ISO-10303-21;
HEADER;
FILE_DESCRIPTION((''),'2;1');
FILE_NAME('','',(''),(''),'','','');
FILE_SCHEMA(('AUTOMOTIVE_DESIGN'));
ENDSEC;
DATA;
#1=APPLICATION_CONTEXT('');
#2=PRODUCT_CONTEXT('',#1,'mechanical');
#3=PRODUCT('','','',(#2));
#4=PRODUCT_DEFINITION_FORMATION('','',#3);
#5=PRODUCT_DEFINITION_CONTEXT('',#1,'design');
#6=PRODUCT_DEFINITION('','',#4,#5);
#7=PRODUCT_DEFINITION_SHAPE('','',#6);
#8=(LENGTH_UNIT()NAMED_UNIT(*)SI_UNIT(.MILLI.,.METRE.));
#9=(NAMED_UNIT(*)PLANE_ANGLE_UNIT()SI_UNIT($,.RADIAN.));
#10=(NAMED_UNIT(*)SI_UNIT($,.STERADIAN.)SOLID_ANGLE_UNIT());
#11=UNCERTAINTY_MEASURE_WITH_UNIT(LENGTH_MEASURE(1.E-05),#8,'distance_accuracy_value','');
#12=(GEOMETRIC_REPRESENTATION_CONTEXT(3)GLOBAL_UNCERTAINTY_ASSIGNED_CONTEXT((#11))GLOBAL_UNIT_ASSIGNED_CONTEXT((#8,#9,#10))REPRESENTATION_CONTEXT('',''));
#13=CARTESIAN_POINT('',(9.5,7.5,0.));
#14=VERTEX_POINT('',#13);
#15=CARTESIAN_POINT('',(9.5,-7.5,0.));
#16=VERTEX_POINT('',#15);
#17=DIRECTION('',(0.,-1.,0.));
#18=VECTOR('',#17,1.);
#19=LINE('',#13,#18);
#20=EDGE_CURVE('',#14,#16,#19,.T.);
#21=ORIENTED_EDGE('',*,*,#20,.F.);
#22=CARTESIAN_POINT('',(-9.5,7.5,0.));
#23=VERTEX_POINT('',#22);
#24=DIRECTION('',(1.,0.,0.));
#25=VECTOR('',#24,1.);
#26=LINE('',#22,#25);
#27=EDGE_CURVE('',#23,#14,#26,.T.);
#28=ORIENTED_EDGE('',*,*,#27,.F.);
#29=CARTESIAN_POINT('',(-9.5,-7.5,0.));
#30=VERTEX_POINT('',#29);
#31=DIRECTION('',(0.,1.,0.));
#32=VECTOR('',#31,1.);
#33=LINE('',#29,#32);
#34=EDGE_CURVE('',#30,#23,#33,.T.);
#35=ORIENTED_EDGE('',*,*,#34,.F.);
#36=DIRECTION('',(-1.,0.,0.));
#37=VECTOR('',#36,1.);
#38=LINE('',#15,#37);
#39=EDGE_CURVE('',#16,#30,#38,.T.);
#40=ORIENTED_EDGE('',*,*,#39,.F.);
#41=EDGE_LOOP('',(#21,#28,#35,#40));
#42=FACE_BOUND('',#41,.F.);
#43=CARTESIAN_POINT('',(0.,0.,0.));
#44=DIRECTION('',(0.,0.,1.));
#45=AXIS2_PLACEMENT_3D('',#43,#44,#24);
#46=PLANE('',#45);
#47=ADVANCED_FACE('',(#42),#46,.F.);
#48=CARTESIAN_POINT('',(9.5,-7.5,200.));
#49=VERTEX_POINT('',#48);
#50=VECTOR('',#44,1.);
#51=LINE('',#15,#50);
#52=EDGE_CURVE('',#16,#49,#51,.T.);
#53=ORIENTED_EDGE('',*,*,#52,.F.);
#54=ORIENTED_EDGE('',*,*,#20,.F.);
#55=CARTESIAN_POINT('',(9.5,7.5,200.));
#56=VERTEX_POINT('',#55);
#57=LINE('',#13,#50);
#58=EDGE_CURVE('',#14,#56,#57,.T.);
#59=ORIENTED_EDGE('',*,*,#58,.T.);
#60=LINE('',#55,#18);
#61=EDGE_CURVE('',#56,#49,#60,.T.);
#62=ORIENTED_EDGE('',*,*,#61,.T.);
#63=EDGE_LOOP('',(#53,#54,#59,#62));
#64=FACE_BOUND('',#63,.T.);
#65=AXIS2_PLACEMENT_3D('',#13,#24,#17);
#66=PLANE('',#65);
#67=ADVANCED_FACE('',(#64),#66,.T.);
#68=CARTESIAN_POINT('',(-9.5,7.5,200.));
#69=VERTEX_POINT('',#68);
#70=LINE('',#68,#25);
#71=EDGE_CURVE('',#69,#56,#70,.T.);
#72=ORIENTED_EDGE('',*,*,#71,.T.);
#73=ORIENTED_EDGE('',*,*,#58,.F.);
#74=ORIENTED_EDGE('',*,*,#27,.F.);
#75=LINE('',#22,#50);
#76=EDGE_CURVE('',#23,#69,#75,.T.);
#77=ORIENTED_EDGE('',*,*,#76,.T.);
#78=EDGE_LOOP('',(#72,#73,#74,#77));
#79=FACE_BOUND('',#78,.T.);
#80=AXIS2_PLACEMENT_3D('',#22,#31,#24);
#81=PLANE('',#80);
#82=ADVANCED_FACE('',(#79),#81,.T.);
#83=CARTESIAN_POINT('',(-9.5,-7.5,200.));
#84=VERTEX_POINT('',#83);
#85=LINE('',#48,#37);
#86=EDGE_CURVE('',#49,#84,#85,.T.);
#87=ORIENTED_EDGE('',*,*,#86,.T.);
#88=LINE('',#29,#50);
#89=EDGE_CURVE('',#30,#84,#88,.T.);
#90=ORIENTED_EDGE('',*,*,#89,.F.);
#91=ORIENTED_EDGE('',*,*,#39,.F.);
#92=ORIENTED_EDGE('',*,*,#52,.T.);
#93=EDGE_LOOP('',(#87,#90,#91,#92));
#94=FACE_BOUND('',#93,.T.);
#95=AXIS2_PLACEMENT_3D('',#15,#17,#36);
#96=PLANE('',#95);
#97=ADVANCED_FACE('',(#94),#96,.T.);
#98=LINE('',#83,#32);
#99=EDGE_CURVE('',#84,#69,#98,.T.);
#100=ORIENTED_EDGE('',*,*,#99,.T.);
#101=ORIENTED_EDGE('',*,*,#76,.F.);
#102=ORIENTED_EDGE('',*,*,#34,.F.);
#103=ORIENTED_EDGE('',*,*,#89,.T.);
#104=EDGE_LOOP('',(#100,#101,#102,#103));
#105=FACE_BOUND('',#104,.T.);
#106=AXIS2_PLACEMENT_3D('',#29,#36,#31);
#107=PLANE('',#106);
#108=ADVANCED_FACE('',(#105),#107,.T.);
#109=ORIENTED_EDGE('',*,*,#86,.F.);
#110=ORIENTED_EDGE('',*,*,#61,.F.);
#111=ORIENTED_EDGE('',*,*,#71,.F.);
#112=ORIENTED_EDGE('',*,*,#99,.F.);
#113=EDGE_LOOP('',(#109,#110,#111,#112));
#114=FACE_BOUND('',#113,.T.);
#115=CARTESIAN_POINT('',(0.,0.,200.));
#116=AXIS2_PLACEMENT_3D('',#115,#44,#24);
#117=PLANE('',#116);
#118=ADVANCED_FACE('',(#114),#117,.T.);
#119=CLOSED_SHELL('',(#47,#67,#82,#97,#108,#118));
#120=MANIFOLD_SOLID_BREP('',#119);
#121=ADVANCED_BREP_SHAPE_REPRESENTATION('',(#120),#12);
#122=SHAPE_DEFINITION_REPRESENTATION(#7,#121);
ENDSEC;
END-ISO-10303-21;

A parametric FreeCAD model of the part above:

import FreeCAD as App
import Part
import Sketcher

doc = App.newDocument("Part")
body = doc.addObject("PartDesign::Body", "Body")

sketch1 = body.newObject("Sketcher::SketchObject", "Sketch")
sketch1.AttachmentSupport = (doc.getObject("XY_Plane"), [""])
sketch1.MapMode = "FlatFace"
sketch1.addGeometry(Part.LineSegment(App.Vector(-10, -8, 0), App.Vector(10, -8, 0)), False)
sketch1.addGeometry(Part.LineSegment(App.Vector(10, -8, 0), App.Vector(10, 8, 0)), False)
sketch1.addGeometry(Part.LineSegment(App.Vector(10, 8, 0), App.Vector(-10, 8, 0)), False)
sketch1.addGeometry(Part.LineSegment(App.Vector(-10, 8, 0), App.Vector(-10, -8, 0)), False)
sketch1.addConstraint(Sketcher.Constraint("Coincident", 0, 2, 1, 1))
sketch1.addConstraint(Sketcher.Constraint("Coincident", 1, 2, 2, 1))
sketch1.addConstraint(Sketcher.Constraint("Coincident", 2, 2, 3, 1))
sketch1.addConstraint(Sketcher.Constraint("Coincident", 3, 2, 0, 1))
sketch1.addConstraint(Sketcher.Constraint("Horizontal", 0))
sketch1.addConstraint(Sketcher.Constraint("Vertical", 1))
sketch1.addConstraint(Sketcher.Constraint("Horizontal", 2))
sketch1.addConstraint(Sketcher.Constraint("Vertical", 3))
sketch1.addConstraint(Sketcher.Constraint("Symmetric", 0, 2, 2, 2, -1, 1))
sketch1.addConstraint(Sketcher.Constraint("DistanceX", 0, 1, 0, 2, 19.0))
sketch1.addConstraint(Sketcher.Constraint("DistanceY", 1, 1, 1, 2, 15.0))
pad1 = body.newObject("PartDesign::Pad", "Pad")
pad1.Profile = sketch1
pad1.Length = 200

doc.recompute()
